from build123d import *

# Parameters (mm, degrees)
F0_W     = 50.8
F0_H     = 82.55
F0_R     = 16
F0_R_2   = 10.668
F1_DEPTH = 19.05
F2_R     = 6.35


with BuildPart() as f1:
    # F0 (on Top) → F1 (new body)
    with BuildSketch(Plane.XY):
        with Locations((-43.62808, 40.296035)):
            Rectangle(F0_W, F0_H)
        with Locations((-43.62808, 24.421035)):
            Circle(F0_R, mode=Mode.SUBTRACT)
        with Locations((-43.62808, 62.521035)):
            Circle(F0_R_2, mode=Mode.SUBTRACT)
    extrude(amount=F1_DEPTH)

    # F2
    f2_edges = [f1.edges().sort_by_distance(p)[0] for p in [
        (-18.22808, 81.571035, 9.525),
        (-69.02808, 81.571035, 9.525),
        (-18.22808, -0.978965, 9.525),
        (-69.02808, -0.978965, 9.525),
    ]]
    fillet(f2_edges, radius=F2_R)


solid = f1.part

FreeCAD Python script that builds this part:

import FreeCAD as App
import Part
import Sketcher
Q = App.Units.Quantity


def edges_at(feature, points):
    """Names of the edges that pass closest to the given points."""
    edges = feature.Shape.Edges
    near = lambda p: min(range(len(edges)), key=lambda i: edges[i].distToShape(Part.Vertex(*p))[0])
    return sorted({f"Edge{near(p) + 1}" for p in points})

doc = App.newDocument("Part")
body = doc.addObject("PartDesign::Body", "Body")

# Sketch on XY plane
sketch1 = body.newObject("Sketcher::SketchObject", "Sketch")
sketch1.AttachmentSupport = (doc.getObject("XY_Plane"), [""])
sketch1.MapMode = "FlatFace"
sketch1.addGeometry(Part.LineSegment(App.Vector(-69, 82, 0), App.Vector(-69, -1, 0)), False)
sketch1.addGeometry(Part.LineSegment(App.Vector(-69, -1, 0), App.Vector(-18, -1, 0)), False)
sketch1.addGeometry(Part.LineSegment(App.Vector(-18, -1, 0), App.Vector(-18, 82, 0)), False)
sketch1.addGeometry(Part.LineSegment(App.Vector(-18, 82, 0), App.Vector(-69, 82, 0)), False)
sketch1.addGeometry(Part.Circle(App.Vector(-44, 24, 0), App.Vector(0, 0, 1), 16), False)
sketch1.addGeometry(Part.Circle(App.Vector(-44, 63, 0), App.Vector(0, 0, 1), 11), False)
sketch1.addConstraint(Sketcher.Constraint("Coincident", 0, 2, 1, 1))
sketch1.addConstraint(Sketcher.Constraint("Coincident", 1, 2, 2, 1))
sketch1.addConstraint(Sketcher.Constraint("Coincident", 2, 2, 3, 1))
sketch1.addConstraint(Sketcher.Constraint("Coincident", 3, 2, 0, 1))
sketch1.addConstraint(Sketcher.Constraint("Vertical", 0))
sketch1.addConstraint(Sketcher.Constraint("Horizontal", 1))
sketch1.addConstraint(Sketcher.Constraint("Vertical", 2))
sketch1.addConstraint(Sketcher.Constraint("Horizontal", 3))
sketch1.addConstraint(Sketcher.Constraint("Vertical", 4, 3, 5, 3))
sketch1.addConstraint(Sketcher.Constraint("Diameter", 5, Q("0.84 in")))
sketch1.addConstraint(Sketcher.Constraint("DistanceX", 1, 1, 1, 2, Q("2 in")))
sketch1.addConstraint(Sketcher.Constraint("DistanceX", 0, 2, 4, 3, Q("1 in")))
sketch1.addConstraint(Sketcher.Constraint("DistanceY", 0, 2, 4, 3, Q("1 in")))
sketch1.addConstraint(Sketcher.Constraint("DistanceY", 0, 2, 0, 1, Q("3.25 in")))
sketch1.addConstraint(Sketcher.Constraint("DistanceY", 4, 3, 5, 3, Q("1.5 in")))
sketch1.addConstraint(Sketcher.Constraint("Diameter", 4, Q("32 mm")))
sketch1.addConstraint(Sketcher.Constraint("DistanceX", 4, 3, -1, 1, Q("43.62808 mm")))
sketch1.addConstraint(Sketcher.Constraint("DistanceY", -1, 1, 4, 3, Q("24.421035 mm")))
pad1 = body.newObject("PartDesign::Pad", "Pad")
pad1.Profile = sketch1
pad1.Length = Q("0.75 in")
doc.recompute()

fillet = body.newObject("PartDesign::Fillet", "Fillet")
fillet.Base = (pad1, edges_at(pad1, [
    (-18.228, 81.571, 9.525),
    (-69.028, 81.571, 9.525),
    (-18.228, -0.979, 9.525),
    (-69.028, -0.979, 9.525),
]))
fillet.Radius = Q("0.25 in")

doc.recompute()
